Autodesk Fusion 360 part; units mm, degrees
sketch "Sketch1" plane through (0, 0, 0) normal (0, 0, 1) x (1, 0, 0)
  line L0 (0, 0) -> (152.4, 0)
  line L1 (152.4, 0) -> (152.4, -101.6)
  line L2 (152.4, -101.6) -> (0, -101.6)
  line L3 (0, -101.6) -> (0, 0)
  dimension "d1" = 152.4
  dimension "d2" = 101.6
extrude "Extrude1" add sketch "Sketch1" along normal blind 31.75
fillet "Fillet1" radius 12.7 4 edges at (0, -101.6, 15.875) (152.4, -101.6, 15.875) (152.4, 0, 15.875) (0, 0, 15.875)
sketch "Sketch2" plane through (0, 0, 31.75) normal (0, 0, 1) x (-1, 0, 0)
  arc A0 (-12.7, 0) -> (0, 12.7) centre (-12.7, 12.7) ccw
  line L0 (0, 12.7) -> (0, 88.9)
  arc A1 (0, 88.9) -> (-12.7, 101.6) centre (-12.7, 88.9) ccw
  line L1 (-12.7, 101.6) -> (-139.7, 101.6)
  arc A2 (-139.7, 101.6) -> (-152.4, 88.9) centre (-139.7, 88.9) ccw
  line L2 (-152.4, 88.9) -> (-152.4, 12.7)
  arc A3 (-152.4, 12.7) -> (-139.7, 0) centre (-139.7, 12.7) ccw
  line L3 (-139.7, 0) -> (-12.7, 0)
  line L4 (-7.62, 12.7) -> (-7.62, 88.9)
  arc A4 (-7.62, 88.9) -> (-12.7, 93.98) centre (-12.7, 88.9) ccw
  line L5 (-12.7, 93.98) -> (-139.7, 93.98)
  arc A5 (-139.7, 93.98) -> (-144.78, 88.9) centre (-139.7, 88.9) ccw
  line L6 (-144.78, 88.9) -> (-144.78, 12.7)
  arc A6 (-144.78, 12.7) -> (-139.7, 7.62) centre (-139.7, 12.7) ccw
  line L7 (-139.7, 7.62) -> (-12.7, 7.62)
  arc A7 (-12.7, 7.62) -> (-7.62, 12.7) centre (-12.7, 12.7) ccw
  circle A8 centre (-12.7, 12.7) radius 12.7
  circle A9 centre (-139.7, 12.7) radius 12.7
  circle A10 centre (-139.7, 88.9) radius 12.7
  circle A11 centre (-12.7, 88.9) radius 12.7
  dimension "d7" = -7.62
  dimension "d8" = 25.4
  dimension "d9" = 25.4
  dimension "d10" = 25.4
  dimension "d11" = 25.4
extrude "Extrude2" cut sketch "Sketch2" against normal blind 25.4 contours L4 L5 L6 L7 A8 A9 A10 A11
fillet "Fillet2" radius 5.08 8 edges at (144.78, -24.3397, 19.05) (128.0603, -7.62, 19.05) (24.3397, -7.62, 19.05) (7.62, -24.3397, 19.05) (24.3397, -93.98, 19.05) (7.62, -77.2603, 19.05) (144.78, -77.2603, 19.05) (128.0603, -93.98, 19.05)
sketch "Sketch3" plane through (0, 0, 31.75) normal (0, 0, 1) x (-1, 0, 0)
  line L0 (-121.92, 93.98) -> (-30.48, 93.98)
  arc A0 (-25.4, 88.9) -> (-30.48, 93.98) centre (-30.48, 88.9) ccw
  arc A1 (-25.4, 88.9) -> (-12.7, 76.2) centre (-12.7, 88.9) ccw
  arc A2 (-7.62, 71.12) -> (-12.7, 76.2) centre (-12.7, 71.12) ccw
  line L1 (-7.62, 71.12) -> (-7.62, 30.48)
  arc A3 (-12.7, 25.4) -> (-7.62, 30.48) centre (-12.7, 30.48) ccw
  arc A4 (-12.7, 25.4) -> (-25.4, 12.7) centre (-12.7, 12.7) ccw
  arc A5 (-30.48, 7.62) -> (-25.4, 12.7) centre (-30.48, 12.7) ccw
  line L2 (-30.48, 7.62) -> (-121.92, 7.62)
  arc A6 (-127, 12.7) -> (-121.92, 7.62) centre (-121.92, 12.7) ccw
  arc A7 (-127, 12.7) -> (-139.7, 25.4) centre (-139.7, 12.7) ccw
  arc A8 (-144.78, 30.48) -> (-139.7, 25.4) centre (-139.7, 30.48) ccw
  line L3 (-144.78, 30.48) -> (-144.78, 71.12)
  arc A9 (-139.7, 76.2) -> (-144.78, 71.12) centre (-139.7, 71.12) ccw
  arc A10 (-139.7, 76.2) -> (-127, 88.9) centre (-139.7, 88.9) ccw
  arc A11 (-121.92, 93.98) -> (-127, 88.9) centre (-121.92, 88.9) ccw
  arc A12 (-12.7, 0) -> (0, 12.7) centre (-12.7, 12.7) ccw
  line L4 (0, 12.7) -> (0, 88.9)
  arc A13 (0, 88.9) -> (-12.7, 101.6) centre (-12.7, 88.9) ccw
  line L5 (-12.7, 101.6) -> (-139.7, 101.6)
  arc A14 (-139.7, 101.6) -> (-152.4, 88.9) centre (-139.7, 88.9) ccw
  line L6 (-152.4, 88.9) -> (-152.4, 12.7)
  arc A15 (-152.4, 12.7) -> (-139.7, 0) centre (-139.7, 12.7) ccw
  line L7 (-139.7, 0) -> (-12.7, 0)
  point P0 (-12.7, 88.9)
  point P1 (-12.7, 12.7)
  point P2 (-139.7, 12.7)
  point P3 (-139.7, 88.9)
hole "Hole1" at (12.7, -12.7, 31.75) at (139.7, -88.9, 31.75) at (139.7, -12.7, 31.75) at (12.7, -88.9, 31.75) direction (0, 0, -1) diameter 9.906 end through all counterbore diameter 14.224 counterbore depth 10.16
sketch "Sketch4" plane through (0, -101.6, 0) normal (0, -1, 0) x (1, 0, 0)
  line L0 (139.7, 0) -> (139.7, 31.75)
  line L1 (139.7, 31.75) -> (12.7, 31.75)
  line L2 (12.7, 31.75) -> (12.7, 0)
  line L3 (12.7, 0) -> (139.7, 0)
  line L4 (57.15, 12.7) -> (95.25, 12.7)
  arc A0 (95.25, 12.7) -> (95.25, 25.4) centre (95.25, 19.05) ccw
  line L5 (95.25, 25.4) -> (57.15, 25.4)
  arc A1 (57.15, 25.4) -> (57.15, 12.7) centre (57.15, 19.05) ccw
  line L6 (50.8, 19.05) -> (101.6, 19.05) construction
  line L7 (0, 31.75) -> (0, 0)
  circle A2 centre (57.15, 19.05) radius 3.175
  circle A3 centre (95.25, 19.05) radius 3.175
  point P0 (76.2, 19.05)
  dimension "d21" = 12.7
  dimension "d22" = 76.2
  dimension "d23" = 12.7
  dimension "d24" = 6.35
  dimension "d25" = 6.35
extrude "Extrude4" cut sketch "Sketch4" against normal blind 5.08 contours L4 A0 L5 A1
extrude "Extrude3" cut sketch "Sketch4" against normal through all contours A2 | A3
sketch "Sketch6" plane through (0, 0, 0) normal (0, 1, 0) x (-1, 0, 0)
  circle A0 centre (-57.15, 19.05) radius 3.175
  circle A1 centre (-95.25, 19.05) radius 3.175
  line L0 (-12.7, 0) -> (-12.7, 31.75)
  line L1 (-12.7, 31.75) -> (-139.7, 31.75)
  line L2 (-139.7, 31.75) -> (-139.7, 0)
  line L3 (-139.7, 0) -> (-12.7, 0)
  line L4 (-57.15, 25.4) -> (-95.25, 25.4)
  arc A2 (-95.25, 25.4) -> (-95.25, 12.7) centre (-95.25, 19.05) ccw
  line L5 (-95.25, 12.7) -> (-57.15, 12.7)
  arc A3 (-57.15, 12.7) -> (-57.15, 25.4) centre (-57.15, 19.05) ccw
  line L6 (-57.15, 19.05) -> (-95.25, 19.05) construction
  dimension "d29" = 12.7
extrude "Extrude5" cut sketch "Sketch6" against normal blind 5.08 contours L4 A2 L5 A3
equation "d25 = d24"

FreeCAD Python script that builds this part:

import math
import FreeCAD as App
import Part
import Sketcher
from FreeCAD import Vector
Q = App.Units.Quantity


def edges_at(feature, points):
    """Names of the edges that pass closest to the given points."""
    edges = feature.Shape.Edges
    near = lambda p: min(range(len(edges)), key=lambda i: edges[i].distToShape(Part.Vertex(*p))[0])
    return sorted({f"Edge{near(p) + 1}" for p in points})


def add_polygon(sketch, points):
    """Adds a closed chain of lines whose ends are joined by coincident constraints."""
    first, n = sketch.GeometryCount, len(points)
    for a, b in zip(points, points[1:] + points[:1]):
        sketch.addGeometry(Part.LineSegment(App.Vector(*a, 0), App.Vector(*b, 0)), False)
    for i in range(n):
        sketch.addConstraint(Sketcher.Constraint("Coincident", first + i, 2, first + (i + 1) % n, 1))

doc = App.newDocument("Part")
body = doc.addObject("PartDesign::Body", "Body")

# Sketch on XY plane
sketch1 = body.newObject("Sketcher::SketchObject", "Sketch")
sketch1.AttachmentSupport = (doc.getObject("XY_Plane"), [""])
sketch1.MapMode = "FlatFace"
add_polygon(sketch1, [(152, 0), (0, 0), (0, -102), (152, -102)])  # lines 0-3
sketch1.addConstraint(Sketcher.Constraint("Horizontal", 0))
sketch1.addConstraint(Sketcher.Constraint("Vertical", 1))
sketch1.addConstraint(Sketcher.Constraint("Horizontal", 2))
sketch1.addConstraint(Sketcher.Constraint("Vertical", 3))
sketch1.addConstraint(Sketcher.Constraint("Coincident", 0, 2, -1, 1))
sketch1.addConstraint(Sketcher.Constraint("DistanceX", 0, 2, 0, 1, Q("6 in")))
sketch1.addConstraint(Sketcher.Constraint("DistanceY", 1, 2, 1, 1, Q("4 in")))
pad1 = body.newObject("PartDesign::Pad", "Pad")
pad1.Profile = sketch1
pad1.Length = Q("1.25 in")
doc.recompute()

fillet = body.newObject("PartDesign::Fillet", "Fillet")
fillet.Base = (pad1, edges_at(pad1, [
    (0, -101.6, 15.875),
    (152.4, -101.6, 15.875),
    (152.4, 0, 15.875),
    (0, 0, 15.875),
]))
fillet.Radius = Q("0.5 in")

# Sketch on XY plane
sketch2 = body.newObject("Sketcher::SketchObject", "Sketch001")
sketch2.AttachmentSupport = (doc.getObject("XY_Plane"), [""])
sketch2.MapMode = "FlatFace"
sketch2.AttachmentOffset = App.Placement(Vector(0, 0, 1.25 * 25.4), App.Rotation())
sketch2.addGeometry(Part.LineSegment(Vector(128, -8, 0), Vector(24, -8, 0)), False)
sketch2.addGeometry(Part.ArcOfCircle(Part.Circle(Vector(13, -13, 0), Vector(0, 0, 1), 13), math.radians(-114), math.radians(24)), False)
sketch2.addGeometry(Part.LineSegment(Vector(8, -24, 0), Vector(8, -77, 0)), False)
sketch2.addGeometry(Part.ArcOfCircle(Part.Circle(Vector(13, -89, 0), Vector(0, 0, 1), 13), math.radians(-24), math.radians(114)), False)
sketch2.addGeometry(Part.LineSegment(Vector(24, -94, 0), Vector(128, -94, 0)), False)
sketch2.addGeometry(Part.ArcOfCircle(Part.Circle(Vector(140, -89, 0), Vector(0, 0, 1), 13), math.radians(66), math.radians(204)), False)
sketch2.addGeometry(Part.LineSegment(Vector(145, -77, 0), Vector(145, -24, 0)), False)
sketch2.addGeometry(Part.ArcOfCircle(Part.Circle(Vector(140, -13, 0), Vector(0, 0, 1), 13), math.radians(156), math.radians(294)), False)
sketch2.addConstraint(Sketcher.Constraint("Coincident", 0, 2, 1, 2))
sketch2.addConstraint(Sketcher.Constraint("Coincident", 1, 1, 2, 1))
sketch2.addConstraint(Sketcher.Constraint("Coincident", 2, 2, 3, 2))
sketch2.addConstraint(Sketcher.Constraint("Coincident", 3, 1, 4, 1))
sketch2.addConstraint(Sketcher.Constraint("Coincident", 4, 2, 5, 2))
sketch2.addConstraint(Sketcher.Constraint("Coincident", 5, 1, 6, 1))
sketch2.addConstraint(Sketcher.Constraint("Coincident", 6, 2, 7, 2))
sketch2.addConstraint(Sketcher.Constraint("Coincident", 7, 1, 0, 1))
sketch2.addConstraint(Sketcher.Constraint("Horizontal", 0))
sketch2.addConstraint(Sketcher.Constraint("Vertical", 2))
sketch2.addConstraint(Sketcher.Constraint("Horizontal", 4))
sketch2.addConstraint(Sketcher.Constraint("Vertical", 6))
sketch2.addConstraint(Sketcher.Constraint("Equal", 1, 3))
sketch2.addConstraint(Sketcher.Constraint("Equal", 3, 5))
sketch2.addConstraint(Sketcher.Constraint("Equal", 5, 7))
sketch2.addConstraint(Sketcher.Constraint("Horizontal", 3, 3, 5, 3))
sketch2.addConstraint(Sketcher.Constraint("Horizontal", 1, 3, 7, 3))
sketch2.addConstraint(Sketcher.Constraint("Horizontal", 2, 2, 5, 1))
sketch2.addConstraint(Sketcher.Constraint("Horizontal", 1, 1, 6, 2))
sketch2.addConstraint(Sketcher.Constraint("Vertical", 1, 3, 3, 3))
sketch2.addConstraint(Sketcher.Constraint("Vertical", 0, 2, 3, 1))
sketch2.addConstraint(Sketcher.Constraint("Radius", 1, Q("0.5 in")))
sketch2.addConstraint(Sketcher.Constraint("DistanceY", 0, 2, -1, 1, Q("0.3 in")))
sketch2.addConstraint(Sketcher.Constraint("DistanceX", -1, 1, 1, 1, Q("0.3 in")))
sketch2.addConstraint(Sketcher.Constraint("DistanceY", 3, 3, 1, 3, Q("3 in")))
sketch2.addConstraint(Sketcher.Constraint("DistanceX", 3, 3, 5, 3, Q("5 in")))
sketch2.addConstraint(Sketcher.Constraint("DistanceX", -1, 1, 1, 3, Q("0.5 in")))
sketch2.addConstraint(Sketcher.Constraint("DistanceY", 1, 3, -1, 1, Q("0.5 in")))
pocket1 = body.newObject("PartDesign::Pocket", "Pocket")
pocket1.Profile = sketch2
pocket1.Length = Q("1 in")
doc.recompute()

fillet2 = body.newObject("PartDesign::Fillet", "Fillet001")
fillet2.Base = (pocket1, edges_at(pocket1, [
    (144.78, -24.34, 19.05),
    (128.06, -7.62, 19.05),
    (24.34, -7.62, 19.05),
    (7.62, -24.34, 19.05),
    (24.34, -93.98, 19.05),
    (7.62, -77.26, 19.05),
    (144.78, -77.26, 19.05),
    (128.06, -93.98, 19.05),
]))
fillet2.Radius = Q("0.2 in")

# Sketch on XY plane
sketch3 = body.newObject("Sketcher::SketchObject", "Sketch002")
sketch3.AttachmentSupport = (doc.getObject("XY_Plane"), [""])
sketch3.MapMode = "FlatFace"
sketch3.AttachmentOffset = App.Placement(Vector(0, 0, 1.25 * 25.4), App.Rotation())
sketch3.addGeometry(Part.Circle(Vector(12.7, -12.7, 0), Vector(0, 0, 1), 5), False)
sketch3.addGeometry(Part.Circle(Vector(139.7, -88.9, 0), Vector(0, 0, 1), 5), False)
sketch3.addGeometry(Part.Circle(Vector(139.7, -12.7, 0), Vector(0, 0, 1), 5), False)
sketch3.addGeometry(Part.Circle(Vector(12.7, -88.9, 0), Vector(0, 0, 1), 5), False)
sketch3.addConstraint(Sketcher.Constraint("Equal", 0, 1))
sketch3.addConstraint(Sketcher.Constraint("Equal", 1, 2))
sketch3.addConstraint(Sketcher.Constraint("Equal", 2, 3))
sketch3.addConstraint(Sketcher.Constraint("Horizontal", 0, 3, 2, 3))
sketch3.addConstraint(Sketcher.Constraint("Horizontal", 1, 3, 3, 3))
sketch3.addConstraint(Sketcher.Constraint("Vertical", 1, 3, 2, 3))
sketch3.addConstraint(Sketcher.Constraint("Vertical", 0, 3, 3, 3))
sketch3.addConstraint(Sketcher.Constraint("Diameter", 0, Q("0.39 in")))
sketch3.addConstraint(Sketcher.Constraint("DistanceX", 0, 3, 1, 3, Q("5 in")))
sketch3.addConstraint(Sketcher.Constraint("DistanceY", 1, 3, 0, 3, Q("3 in")))
sketch3.addConstraint(Sketcher.Constraint("DistanceX", -1, 1, 0, 3, Q("0.5 in")))
sketch3.addConstraint(Sketcher.Constraint("DistanceY", 0, 3, -1, 1, Q("0.5 in")))
doc.recompute()
hole = body.newObject("PartDesign::Hole", "Hole")
hole.Profile = sketch3
hole.ThreadType = "None"
hole.Diameter = Q("0.39 in")
hole.DepthType = "ThroughAll"
hole.HoleCutType = "Counterbore"
hole.HoleCutDiameter = Q("0.56 in")
hole.HoleCutDepth = Q("0.4 in")

# Sketch on XZ plane
sketch4 = body.newObject("Sketcher::SketchObject", "Sketch003")
sketch4.AttachmentSupport = (doc.getObject("XZ_Plane"), [""])
sketch4.MapMode = "FlatFace"
sketch4.AttachmentOffset = App.Placement(Vector(0, 0, 4 * 25.4), App.Rotation())
sketch4.addGeometry(Part.ArcOfCircle(Part.Circle(Vector(57.1, 19.1, 0), Vector(0, 0, 1), 6.3), math.radians(90), math.radians(270)), False)
sketch4.addGeometry(Part.LineSegment(Vector(57.1, 12.7, 0), Vector(95.2, 12.7, 0)), False)
sketch4.addGeometry(Part.ArcOfCircle(Part.Circle(Vector(95.2, 19.1, 0), Vector(0, 0, 1), 6.4), math.radians(-90), math.radians(90)), False)
sketch4.addGeometry(Part.LineSegment(Vector(95.2, 25.4, 0), Vector(57.1, 25.4, 0)), False)
sketch4.addGeometry(Part.Circle(Vector(57.1, 19.1, 0), Vector(0, 0, 1), 3.2), False)
sketch4.addGeometry(Part.Circle(Vector(95.2, 19.1, 0), Vector(0, 0, 1), 3.2), False)
sketch4.addConstraint(Sketcher.Constraint("Tangent", 0, 2, 1, 1))
sketch4.addConstraint(Sketcher.Constraint("Tangent", 1, 2, 2, 1))
sketch4.addConstraint(Sketcher.Constraint("Tangent", 2, 2, 3, 1))
sketch4.addConstraint(Sketcher.Constraint("Tangent", 3, 2, 0, 1))
sketch4.addConstraint(Sketcher.Constraint("Horizontal", 1))
sketch4.addConstraint(Sketcher.Constraint("Horizontal", 3))
sketch4.addConstraint(Sketcher.Constraint("Coincident", 4, 3, 0, 3))
sketch4.addConstraint(Sketcher.Constraint("Coincident", 5, 3, 2, 3))
sketch4.addConstraint(Sketcher.Constraint("Equal", 4, 5))
sketch4.addConstraint(Sketcher.Constraint("Diameter", 4, Q("0.25 in")))
sketch4.addConstraint(Sketcher.Constraint("Radius", 0, Q("0.25 in")))
sketch4.addConstraint(Sketcher.Constraint("DistanceY", -1, 1, 0, 2, Q("0.5 in")))
sketch4.addConstraint(Sketcher.Constraint("DistanceX", 1, 1, 1, 2, Q("1.5 in")))
sketch4.addConstraint(Sketcher.Constraint("DistanceX", -1, 1, 0, 3, Q("2.25 in")))
pocket2 = body.newObject("PartDesign::Pocket", "Pocket001")
pocket2.Profile = sketch4
pocket2.Length = Q("0.2 in")

# Sketch on XZ plane
sketch5 = body.newObject("Sketcher::SketchObject", "Sketch004")
sketch5.AttachmentSupport = (doc.getObject("XZ_Plane"), [""])
sketch5.MapMode = "FlatFace"
sketch5.AttachmentOffset = App.Placement(Vector(0, 0, 4 * 25.4), App.Rotation())
sketch5.addGeometry(Part.Circle(Vector(57.1, 19.1, 0), Vector(0, 0, 1), 3.2), False)
sketch5.addGeometry(Part.Circle(Vector(95.2, 19.1, 0), Vector(0, 0, 1), 3.2), False)
sketch5.addConstraint(Sketcher.Constraint("Equal", 0, 1))
sketch5.addConstraint(Sketcher.Constraint("Horizontal", 0, 3, 1, 3))
sketch5.addConstraint(Sketcher.Constraint("Diameter", 0, Q("0.25 in")))
sketch5.addConstraint(Sketcher.Constraint("DistanceX", 0, 3, 1, 3, Q("1.5 in")))
sketch5.addConstraint(Sketcher.Constraint("DistanceX", -1, 1, 0, 3, Q("2.25 in")))
sketch5.addConstraint(Sketcher.Constraint("DistanceY", -1, 1, 0, 3, Q("0.75 in")))
pocket3 = body.newObject("PartDesign::Pocket", "Pocket002")
pocket3.Profile = sketch5
pocket3.Type = "ThroughAll"

# Sketch on XZ plane
sketch6 = body.newObject("Sketcher::SketchObject", "Sketch005")
sketch6.AttachmentSupport = (doc.getObject("XZ_Plane"), [""])
sketch6.MapMode = "FlatFace"
sketch6.addGeometry(Part.ArcOfCircle(Part.Circle(Vector(57.1, 19.1, 0), Vector(0, 0, 1), 6.4), math.radians(90), math.radians(270)), False)
sketch6.addGeometry(Part.LineSegment(Vector(57.1, 25.4, 0), Vector(95.2, 25.4, 0)), False)
sketch6.addGeometry(Part.ArcOfCircle(Part.Circle(Vector(95.2, 19.1, 0), Vector(0, 0, 1), 6.3), math.radians(-90), math.radians(90)), False)
sketch6.addGeometry(Part.LineSegment(Vector(95.2, 12.7, 0), Vector(57.1, 12.7, 0)), False)
sketch6.addGeometry(Part.Circle(Vector(95.2, 19.1, 0), Vector(0, 0, 1), 3.2), False)
sketch6.addGeometry(Part.Circle(Vector(57.1, 19.1, 0), Vector(0, 0, 1), 3.2), False)
sketch6.addConstraint(Sketcher.Constraint("Tangent", 0, 1, 1, 1))
sketch6.addConstraint(Sketcher.Constraint("Tangent", 1, 2, 2, 2))
sketch6.addConstraint(Sketcher.Constraint("Tangent", 2, 1, 3, 1))
sketch6.addConstraint(Sketcher.Constraint("Tangent", 3, 2, 0, 2))
sketch6.addConstraint(Sketcher.Constraint("Horizontal", 1))
sketch6.addConstraint(Sketcher.Constraint("Horizontal", 3))
sketch6.addConstraint(Sketcher.Constraint("Coincident", 4, 3, 2, 3))
sketch6.addConstraint(Sketcher.Constraint("Coincident", 5, 3, 0, 3))
sketch6.addConstraint(Sketcher.Constraint("Equal", 4, 5))
sketch6.addConstraint(Sketcher.Constraint("Radius", 0, Q("0.25 in")))
sketch6.addConstraint(Sketcher.Constraint("DistanceY", -1, 1, 2, 1, Q("0.5 in")))
sketch6.addConstraint(Sketcher.Constraint("Diameter", 4, Q("0.25 in")))
sketch6.addConstraint(Sketcher.Constraint("DistanceX", 1, 1, 1, 2, Q("1.5 in")))
sketch6.addConstraint(Sketcher.Constraint("DistanceX", -1, 1, 0, 3, Q("2.25 in")))
pocket4 = body.newObject("PartDesign::Pocket", "Pocket003")
pocket4.Profile = sketch6
pocket4.Length = Q("0.2 in")
pocket4.Reversed = True

doc.recompute()
